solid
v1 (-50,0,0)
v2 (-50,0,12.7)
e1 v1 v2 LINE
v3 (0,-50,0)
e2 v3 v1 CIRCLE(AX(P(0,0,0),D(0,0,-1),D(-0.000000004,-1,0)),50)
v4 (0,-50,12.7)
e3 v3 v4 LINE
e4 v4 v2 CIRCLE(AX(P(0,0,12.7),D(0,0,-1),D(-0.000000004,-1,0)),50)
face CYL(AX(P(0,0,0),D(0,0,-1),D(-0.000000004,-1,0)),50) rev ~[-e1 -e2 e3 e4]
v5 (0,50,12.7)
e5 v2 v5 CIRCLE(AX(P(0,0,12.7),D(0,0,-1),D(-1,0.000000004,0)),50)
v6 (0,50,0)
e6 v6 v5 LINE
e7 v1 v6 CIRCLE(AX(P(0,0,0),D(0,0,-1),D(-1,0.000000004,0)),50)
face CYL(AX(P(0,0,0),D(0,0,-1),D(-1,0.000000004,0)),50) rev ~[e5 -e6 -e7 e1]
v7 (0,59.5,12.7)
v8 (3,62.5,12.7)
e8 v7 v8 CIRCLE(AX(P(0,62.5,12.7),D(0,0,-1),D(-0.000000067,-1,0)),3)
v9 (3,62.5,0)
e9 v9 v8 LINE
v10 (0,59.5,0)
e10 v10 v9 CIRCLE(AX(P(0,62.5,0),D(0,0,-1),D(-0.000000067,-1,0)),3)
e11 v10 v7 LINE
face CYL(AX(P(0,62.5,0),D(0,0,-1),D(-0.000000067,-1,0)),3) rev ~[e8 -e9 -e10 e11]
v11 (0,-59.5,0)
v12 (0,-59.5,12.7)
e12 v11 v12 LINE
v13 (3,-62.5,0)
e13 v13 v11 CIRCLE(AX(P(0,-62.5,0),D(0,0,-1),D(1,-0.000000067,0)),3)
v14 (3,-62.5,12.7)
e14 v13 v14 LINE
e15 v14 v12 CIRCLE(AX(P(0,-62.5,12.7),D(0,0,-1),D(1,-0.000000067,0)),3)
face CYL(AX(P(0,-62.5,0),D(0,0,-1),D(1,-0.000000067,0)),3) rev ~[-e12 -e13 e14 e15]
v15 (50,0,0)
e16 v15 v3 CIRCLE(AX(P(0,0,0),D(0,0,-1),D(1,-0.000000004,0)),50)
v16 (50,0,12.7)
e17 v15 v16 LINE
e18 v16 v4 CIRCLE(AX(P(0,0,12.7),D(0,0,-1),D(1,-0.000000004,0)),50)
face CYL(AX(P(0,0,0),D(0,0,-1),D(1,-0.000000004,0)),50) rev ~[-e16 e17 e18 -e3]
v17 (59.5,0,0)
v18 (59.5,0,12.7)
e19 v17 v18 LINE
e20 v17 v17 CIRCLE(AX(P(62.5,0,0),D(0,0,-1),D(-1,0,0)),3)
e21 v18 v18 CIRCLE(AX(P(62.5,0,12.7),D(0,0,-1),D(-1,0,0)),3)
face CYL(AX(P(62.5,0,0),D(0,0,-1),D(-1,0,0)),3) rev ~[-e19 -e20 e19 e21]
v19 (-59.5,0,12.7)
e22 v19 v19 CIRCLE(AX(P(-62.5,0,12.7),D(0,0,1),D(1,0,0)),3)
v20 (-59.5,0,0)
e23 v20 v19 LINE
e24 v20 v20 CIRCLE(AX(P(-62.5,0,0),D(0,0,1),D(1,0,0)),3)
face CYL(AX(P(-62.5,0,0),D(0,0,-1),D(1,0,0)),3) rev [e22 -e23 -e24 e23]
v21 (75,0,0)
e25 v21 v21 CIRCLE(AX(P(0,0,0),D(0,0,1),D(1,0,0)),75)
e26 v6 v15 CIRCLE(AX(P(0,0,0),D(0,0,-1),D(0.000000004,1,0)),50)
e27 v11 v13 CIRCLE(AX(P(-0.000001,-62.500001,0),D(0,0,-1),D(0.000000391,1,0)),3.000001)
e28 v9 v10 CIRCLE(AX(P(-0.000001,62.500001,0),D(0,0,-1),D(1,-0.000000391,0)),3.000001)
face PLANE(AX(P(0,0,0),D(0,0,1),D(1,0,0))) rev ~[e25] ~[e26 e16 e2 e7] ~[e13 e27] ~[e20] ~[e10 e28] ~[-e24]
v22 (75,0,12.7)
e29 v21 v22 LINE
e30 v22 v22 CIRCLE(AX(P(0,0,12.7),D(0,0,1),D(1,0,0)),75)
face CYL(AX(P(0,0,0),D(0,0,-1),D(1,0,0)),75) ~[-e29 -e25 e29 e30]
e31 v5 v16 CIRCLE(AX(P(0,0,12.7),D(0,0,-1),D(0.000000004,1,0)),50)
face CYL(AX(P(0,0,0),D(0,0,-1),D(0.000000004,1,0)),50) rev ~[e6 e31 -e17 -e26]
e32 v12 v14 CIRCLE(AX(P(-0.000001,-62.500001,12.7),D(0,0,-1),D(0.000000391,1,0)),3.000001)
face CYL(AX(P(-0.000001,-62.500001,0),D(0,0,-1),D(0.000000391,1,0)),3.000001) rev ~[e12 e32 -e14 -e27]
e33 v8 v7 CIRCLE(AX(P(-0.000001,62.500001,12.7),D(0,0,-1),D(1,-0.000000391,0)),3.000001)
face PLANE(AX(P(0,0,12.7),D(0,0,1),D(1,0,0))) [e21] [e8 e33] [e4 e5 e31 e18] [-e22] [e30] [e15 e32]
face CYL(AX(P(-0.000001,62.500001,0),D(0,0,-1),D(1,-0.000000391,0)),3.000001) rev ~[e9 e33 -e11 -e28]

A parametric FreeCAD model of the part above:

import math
import FreeCAD as App
import Part
import Sketcher
from FreeCAD import Vector

doc = App.newDocument("Part")
params = doc.addObject("Spreadsheet::Sheet", "Params")
for row, (alias, value) in enumerate([
    ("sketch1_diameter", "150 mm"),
    ("sketch1_diameter2", "6 mm"),
    ("sketch1_radius", "50 mm"),
    ("pad1_length", "12.7 mm"),
], start=1):
    params.set(f"A{row}", alias)
    params.set(f"B{row}", "=" + value)
    params.setAlias(f"B{row}", alias)

body = doc.addObject("PartDesign::Body", "Body")

sketch1 = body.newObject("Sketcher::SketchObject", "Sketch")
sketch1.AttachmentSupport = (doc.getObject("XY_Plane"), [""])
sketch1.MapMode = "FlatFace"
sketch1.addGeometry([
    Part.Circle(Vector(0, 0, 0), Vector(0, 0, 1), 75),
    Part.ArcOfCircle(Part.Circle(Vector(0, -62.5, 0), Vector(0, 0, 1), 3), math.radians(0), math.radians(90)),
    Part.ArcOfCircle(Part.Circle(Vector(0, -62.5, 0), Vector(0, 0, 1), 3), math.radians(90), math.radians(360)),
    Part.Circle(Vector(-62.5, 0, 0), Vector(0, 0, 1), 3),
    Part.ArcOfCircle(Part.Circle(Vector(0, 0, 0), Vector(0, 0, 1), 50), math.radians(90), math.radians(180)),
    Part.ArcOfCircle(Part.Circle(Vector(0, 0, 0), Vector(0, 0, 1), 50), math.radians(0), math.radians(90)),
    Part.ArcOfCircle(Part.Circle(Vector(0, 0, 0), Vector(0, 0, 1), 50), math.radians(-90), math.radians(0)),
    Part.ArcOfCircle(Part.Circle(Vector(0, 0, 0), Vector(0, 0, 1), 50), math.radians(-180), math.radians(-90)),
    Part.Circle(Vector(62.5, 0, 0), Vector(0, 0, 1), 3),
    Part.ArcOfCircle(Part.Circle(Vector(0, 62.5, 0), Vector(0, 0, 1), 3), math.radians(0), math.radians(270)),
    Part.ArcOfCircle(Part.Circle(Vector(0, 62.5, 0), Vector(0, 0, 1), 3), math.radians(-90), math.radians(0)),
], False)
sketch1.addConstraint([
    Sketcher.Constraint("Tangent", 1, 1, 2, 2),
    Sketcher.Constraint("Coincident", 2, 1, 1, 2),
    Sketcher.Constraint("Tangent", 4, 1, 5, 2),
    Sketcher.Constraint("Tangent", 5, 1, 6, 2),
    Sketcher.Constraint("Tangent", 6, 1, 7, 2),
    Sketcher.Constraint("Tangent", 7, 1, 4, 2),
    Sketcher.Constraint("Tangent", 9, 1, 10, 2),
    Sketcher.Constraint("Coincident", 10, 1, 9, 2),
    Sketcher.Constraint("Coincident", 0, 3, -1, 1),
    Sketcher.Constraint("Coincident", 4, 3, -1, 1),
    Sketcher.Constraint("Equal", 2, 3),
    Sketcher.Constraint("Equal", 4, 5),
    Sketcher.Constraint("Equal", 3, 8),
    Sketcher.Constraint("Equal", 8, 9),
    Sketcher.Constraint("Symmetric", 3, 3, 8, 3, -1, 1),
    Sketcher.Constraint("Symmetric", 1, 3, 9, 3, -1, 1),
    Sketcher.Constraint("Symmetric", 1, 1, 9, 1, -1),
    Sketcher.Constraint("PointOnObject", 3, 3, -1),
    Sketcher.Constraint("PointOnObject", 2, 1, -2),
    Sketcher.Constraint("PointOnObject", 4, 1, -2),
    Sketcher.Constraint("PointOnObject", 5, 1, -1),
    Sketcher.Constraint("PointOnObject", 6, 1, -2),
    Sketcher.Constraint("PointOnObject", 7, 1, -1),
    Sketcher.Constraint("PointOnObject", 10, 1, -2),
    Sketcher.Constraint("Horizontal", 2, 3, 1, 1),
    Sketcher.Constraint("Diameter", 0, 150.0),
    Sketcher.Constraint("Diameter", 3, 6.0),
    Sketcher.Constraint("Radius", 4, 50.0),
    Sketcher.Constraint("DistanceY", 1, 3, -1, 1, 62.500001),
    Sketcher.Constraint("DistanceX", 3, 3, -1, 1, 62.5),
])
sketch1.setExpression("Constraints[25]", "Params.sketch1_diameter")
sketch1.setExpression("Constraints[26]", "Params.sketch1_diameter2")
sketch1.setExpression("Constraints[27]", "Params.sketch1_radius")
pad1 = body.newObject("PartDesign::Pad", "Pad")
pad1.Profile = sketch1
pad1.setExpression("Length", "Params.pad1_length")

doc.recompute()
